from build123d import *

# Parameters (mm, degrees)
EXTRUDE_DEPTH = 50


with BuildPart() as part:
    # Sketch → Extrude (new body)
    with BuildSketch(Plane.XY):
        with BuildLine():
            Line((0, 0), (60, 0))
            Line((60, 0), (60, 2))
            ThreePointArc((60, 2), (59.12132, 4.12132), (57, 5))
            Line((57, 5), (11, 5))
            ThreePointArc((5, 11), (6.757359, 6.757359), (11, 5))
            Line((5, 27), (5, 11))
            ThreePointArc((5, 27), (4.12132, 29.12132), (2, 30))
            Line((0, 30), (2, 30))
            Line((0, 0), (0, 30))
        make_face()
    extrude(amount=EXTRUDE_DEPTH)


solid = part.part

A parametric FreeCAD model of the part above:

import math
import FreeCAD as App
import Part
import Sketcher
Q = App.Units.Quantity

doc = App.newDocument("Part")
body = doc.addObject("PartDesign::Body", "Body")

sketch1 = body.newObject("Sketcher::SketchObject", "Sketch")
sketch1.AttachmentSupport = (doc.getObject("XY_Plane"), [""])
sketch1.MapMode = "FlatFace"
sketch1.addGeometry([
    Part.LineSegment(App.Vector(0, 0, 0), App.Vector(60, 0, 0)),
    Part.LineSegment(App.Vector(60, 0, 0), App.Vector(60, 2, 0)),
    Part.ArcOfCircle(Part.Circle(App.Vector(57, 2, 0), App.Vector(0, 0, 1), 3), math.radians(0), math.radians(90)),
    Part.LineSegment(App.Vector(57, 5, 0), App.Vector(11, 5, 0)),
    Part.ArcOfCircle(Part.Circle(App.Vector(11, 11, 0), App.Vector(0, 0, 1), 6), math.radians(180), math.radians(270)),
    Part.LineSegment(App.Vector(5, 11, 0), App.Vector(5, 27, 0)),
    Part.ArcOfCircle(Part.Circle(App.Vector(2, 27, 0), App.Vector(0, 0, 1), 3), math.radians(0), math.radians(90)),
    Part.LineSegment(App.Vector(2, 30, 0), App.Vector(0, 30, 0)),
    Part.LineSegment(App.Vector(0, 30, 0), App.Vector(0, 0, 0)),
], False)
sketch1.addConstraint([
    Sketcher.Constraint("Coincident", 0, 2, 1, 1),
    Sketcher.Constraint("Tangent", 1, 2, 2, 1),
    Sketcher.Constraint("Tangent", 2, 2, 3, 1),
    Sketcher.Constraint("Tangent", 3, 2, 4, 2),
    Sketcher.Constraint("Tangent", 4, 1, 5, 1),
    Sketcher.Constraint("Tangent", 5, 2, 6, 1),
    Sketcher.Constraint("Tangent", 6, 2, 7, 1),
    Sketcher.Constraint("Coincident", 7, 2, 8, 1),
    Sketcher.Constraint("Coincident", 8, 2, 0, 1),
    Sketcher.Constraint("Horizontal", 0),
    Sketcher.Constraint("Vertical", 1),
    Sketcher.Constraint("Horizontal", 3),
    Sketcher.Constraint("Vertical", 5),
    Sketcher.Constraint("Horizontal", 7),
    Sketcher.Constraint("Vertical", 8),
    Sketcher.Constraint("Coincident", 8, 2, -1, 1),
    Sketcher.Constraint("Equal", 2, 6),
    Sketcher.Constraint("Equal", 7, 1),
    Sketcher.Constraint("Radius", 2, Q("3.000001 mm")),
    Sketcher.Constraint("Radius", 4, Q("5.999999 mm")),
    Sketcher.Constraint("DistanceX", 0, 1, 0, 2, Q("60 mm")),
    Sketcher.Constraint("DistanceX", 3, 2, 3, 1, Q("46 mm")),
    Sketcher.Constraint("DistanceY", 5, 1, 5, 2, Q("16 mm")),
])
pad1 = body.newObject("PartDesign::Pad", "Pad")
pad1.Profile = sketch1
pad1.Length = 50

doc.recompute()
